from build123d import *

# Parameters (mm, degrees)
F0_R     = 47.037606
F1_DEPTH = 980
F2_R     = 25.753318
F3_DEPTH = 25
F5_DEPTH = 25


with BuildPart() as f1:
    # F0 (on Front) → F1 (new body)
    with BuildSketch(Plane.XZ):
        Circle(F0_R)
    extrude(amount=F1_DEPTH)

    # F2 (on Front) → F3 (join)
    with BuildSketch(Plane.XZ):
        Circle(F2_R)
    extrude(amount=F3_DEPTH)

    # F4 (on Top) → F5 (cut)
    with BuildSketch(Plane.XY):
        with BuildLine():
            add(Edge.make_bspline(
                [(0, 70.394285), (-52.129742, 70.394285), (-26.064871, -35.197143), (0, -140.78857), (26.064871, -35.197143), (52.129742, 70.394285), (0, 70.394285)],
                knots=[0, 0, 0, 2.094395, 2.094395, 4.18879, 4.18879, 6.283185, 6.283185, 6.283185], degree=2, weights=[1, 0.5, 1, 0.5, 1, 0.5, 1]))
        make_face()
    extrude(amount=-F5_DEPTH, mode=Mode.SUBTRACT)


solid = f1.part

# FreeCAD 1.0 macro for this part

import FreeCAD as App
import Part
import Sketcher
from FreeCAD import Vector

doc = App.newDocument("Part")
body = doc.addObject("PartDesign::Body", "Body")

sketch1 = doc.addObject("Sketcher::SketchObject", "Sketch")
body.addObject(sketch1)
sketch1.AttachmentSupport = (doc.XZ_Plane, [""])
sketch1.MapMode = "FlatFace"
sketch1.addGeometry(Part.Circle(Vector(0, 0, 0), Vector(0, 0, 1), 47), False)
sketch1.addConstraint([
    Sketcher.Constraint("Coincident", 0, 3, -1, 1),
    Sketcher.Constraint("Diameter", 0, 94.075212),
])
pad1 = doc.addObject("PartDesign::Pad", "Pad")
body.addObject(pad1)
pad1.Profile = sketch1
pad1.Length = 980

sketch2 = doc.addObject("Sketcher::SketchObject", "Sketch001")
body.addObject(sketch2)
sketch2.AttachmentSupport = (doc.XZ_Plane, [""])
sketch2.MapMode = "FlatFace"
sketch2.addGeometry(Part.Circle(Vector(0, 0, 0), Vector(0, 0, 1), 26), False)
sketch2.addConstraint([
    Sketcher.Constraint("Coincident", 0, 3, -1, 1),
    Sketcher.Constraint("Diameter", 0, 51.506636),
])
pad2 = doc.addObject("PartDesign::Pad", "Pad001")
body.addObject(pad2)
pad2.Profile = sketch2
pad2.Length = 25

sketch3 = doc.addObject("Sketcher::SketchObject", "Sketch002")
body.addObject(sketch3)
sketch3.AttachmentSupport = (doc.XY_Plane, [""])
sketch3.MapMode = "FlatFace"
sketch3.addGeometry(Part.BSplineCurve([Vector(0, 70.394285, 0), Vector(-52.129742, 70.394285, 0), Vector(-26.064871, -35.197143, 0), Vector(0, -140.78857, 0), Vector(26.064871, -35.197143, 0), Vector(52.129742, 70.394285, 0), Vector(0, 70.394285, 0)], [3, 2, 2, 3], [0, 2.094395, 4.18879, 6.283185], False, 2, [1, 0.5, 1, 0.5, 1, 0.5, 1], False), False)
sketch3.addConstraint(Sketcher.Constraint("Block", 0))
pocket1 = doc.addObject("PartDesign::Pocket", "Pocket")
body.addObject(pocket1)
pocket1.Profile = sketch3
pocket1.Length = 25

doc.recompute()
